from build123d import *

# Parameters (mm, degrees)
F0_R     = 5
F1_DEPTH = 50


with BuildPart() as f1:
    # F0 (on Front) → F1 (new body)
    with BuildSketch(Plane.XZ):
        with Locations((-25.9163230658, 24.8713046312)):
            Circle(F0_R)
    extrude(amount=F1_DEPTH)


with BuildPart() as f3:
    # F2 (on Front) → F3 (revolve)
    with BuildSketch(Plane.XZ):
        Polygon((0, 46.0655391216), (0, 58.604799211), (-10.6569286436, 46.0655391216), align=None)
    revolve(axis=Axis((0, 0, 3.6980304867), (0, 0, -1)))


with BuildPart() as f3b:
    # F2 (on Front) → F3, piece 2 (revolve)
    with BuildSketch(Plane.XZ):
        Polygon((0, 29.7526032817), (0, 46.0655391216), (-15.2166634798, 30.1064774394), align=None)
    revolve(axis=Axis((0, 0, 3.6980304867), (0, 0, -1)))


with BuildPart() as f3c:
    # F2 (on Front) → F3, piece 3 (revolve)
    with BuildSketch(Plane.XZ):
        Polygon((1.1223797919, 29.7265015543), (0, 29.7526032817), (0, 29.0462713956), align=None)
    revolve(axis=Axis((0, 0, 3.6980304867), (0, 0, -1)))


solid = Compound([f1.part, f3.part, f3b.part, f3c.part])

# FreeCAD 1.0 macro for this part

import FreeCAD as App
import Part
import Sketcher

V = App.Vector


def add_polygon(sketch, points):
    """Adds a closed chain of lines whose ends are joined by coincident constraints."""
    first, n = sketch.GeometryCount, len(points)
    for a, b in zip(points, points[1:] + points[:1]):
        sketch.addGeometry(Part.LineSegment(App.Vector(*a, 0), App.Vector(*b, 0)), False)
    for i in range(n):
        sketch.addConstraint(Sketcher.Constraint("Coincident", first + i, 2, first + (i + 1) % n, 1))

doc = App.newDocument("Part")
params = doc.addObject("Spreadsheet::Sheet", "Params")
for row, (alias, value) in enumerate([
    ("sketch1_diameter", "10 mm"),
    ("pad1_length", "50 mm"),
    ("revolution_angle", "360 deg"),
    ("revolution2_angle", "360 deg"),
    ("revolution3_angle", "360 deg"),
], start=1):
    params.set(f"A{row}", alias)
    params.set(f"B{row}", "=" + value)
    params.setAlias(f"B{row}", alias)

body = doc.addObject("PartDesign::Body", "Body")

sketch1 = body.newObject("Sketcher::SketchObject", "Sketch")
sketch1.AttachmentSupport = (doc.getObject("XZ_Plane"), [""])
sketch1.MapMode = "FlatFace"
sketch1.addGeometry(Part.Circle(V(-26, 25, 0), V(0, 0, 1), 5), False)
sketch1.addConstraint([
    Sketcher.Constraint("Diameter", 0, 10.0),
    Sketcher.Constraint("DistanceX", 0, 3, -1, 1, 25.916323),
    Sketcher.Constraint("DistanceY", -1, 1, 0, 3, 24.871305),
])
sketch1.setExpression("Constraints[0]", "Params.sketch1_diameter")
pad1 = body.newObject("PartDesign::Pad", "Pad")
pad1.Profile = sketch1
pad1.setExpression("Length", "Params.pad1_length")
body2 = doc.addObject("PartDesign::Body", "Body001")

sketch2 = body2.newObject("Sketcher::SketchObject", "Sketch001")
sketch2.AttachmentSupport = (doc.getObject("XZ_Plane001"), [""])
sketch2.MapMode = "FlatFace"
add_polygon(sketch2, [(0, 46), (0, 59), (-11, 46)])
sketch2.addConstraint([
    Sketcher.Constraint("Vertical", 0),
    Sketcher.Constraint("Horizontal", 2),
    Sketcher.Constraint("PointOnObject", 0, 2, -2),
    Sketcher.Constraint("Distance", 1, 16.456098),
    Sketcher.Constraint("DistanceX", 2, 1, 2, 2, 10.656929),
    Sketcher.Constraint("DistanceY", -1, 1, 0, 2, 58.604799),
])
revolution = body2.newObject("PartDesign::Revolution", "Revolution")
revolution.Profile = sketch2
revolution.ReferenceAxis = (sketch2, ["V_Axis"])
revolution.setExpression("Angle", "Params.revolution_angle")
body3 = doc.addObject("PartDesign::Body", "Body002")

sketch3 = body3.newObject("Sketcher::SketchObject", "Sketch002")
sketch3.AttachmentSupport = (doc.getObject("XZ_Plane002"), [""])
sketch3.MapMode = "FlatFace"
add_polygon(sketch3, [(0, 30), (0, 46), (-15, 30)])
sketch3.addConstraint([
    Sketcher.Constraint("Vertical", 0),
    Sketcher.Constraint("PointOnObject", 0, 2, -2),
    Sketcher.Constraint("DistanceY", 0, 1, 0, 2, 16.312936),
    Sketcher.Constraint("DistanceY", -1, 1, 0, 2, 46.065539),
    Sketcher.Constraint("DistanceY", 1, 2, 0, 2, 15.959062),
    Sketcher.Constraint("Distance", 1, 22.050816),
])
revolution2 = body3.newObject("PartDesign::Revolution", "Revolution001")
revolution2.Profile = sketch3
revolution2.ReferenceAxis = (sketch3, ["V_Axis"])
revolution2.setExpression("Angle", "Params.revolution2_angle")
body4 = doc.addObject("PartDesign::Body", "Body003")

sketch4 = body4.newObject("Sketcher::SketchObject", "Sketch003")
sketch4.AttachmentSupport = (doc.getObject("XZ_Plane003"), [""])
sketch4.MapMode = "FlatFace"
add_polygon(sketch4, [(1.1, 29.7), (0, 29.8), (0, 29)])
sketch4.addConstraint([
    Sketcher.Constraint("Vertical", 1),
    Sketcher.Constraint("PointOnObject", 0, 2, -2),
    Sketcher.Constraint("DistanceY", 1, 2, 1, 1, 0.706332),
    Sketcher.Constraint("DistanceY", -1, 1, 2, 2, 29.726502),
    Sketcher.Constraint("DistanceY", 2, 2, 0, 2, 0.026102),
    Sketcher.Constraint("Distance", 2, 1.312421),
])
revolution3 = body4.newObject("PartDesign::Revolution", "Revolution002")
revolution3.Profile = sketch4
revolution3.ReferenceAxis = (sketch4, ["V_Axis"])
revolution3.setExpression("Angle", "Params.revolution3_angle")

doc.recompute()
